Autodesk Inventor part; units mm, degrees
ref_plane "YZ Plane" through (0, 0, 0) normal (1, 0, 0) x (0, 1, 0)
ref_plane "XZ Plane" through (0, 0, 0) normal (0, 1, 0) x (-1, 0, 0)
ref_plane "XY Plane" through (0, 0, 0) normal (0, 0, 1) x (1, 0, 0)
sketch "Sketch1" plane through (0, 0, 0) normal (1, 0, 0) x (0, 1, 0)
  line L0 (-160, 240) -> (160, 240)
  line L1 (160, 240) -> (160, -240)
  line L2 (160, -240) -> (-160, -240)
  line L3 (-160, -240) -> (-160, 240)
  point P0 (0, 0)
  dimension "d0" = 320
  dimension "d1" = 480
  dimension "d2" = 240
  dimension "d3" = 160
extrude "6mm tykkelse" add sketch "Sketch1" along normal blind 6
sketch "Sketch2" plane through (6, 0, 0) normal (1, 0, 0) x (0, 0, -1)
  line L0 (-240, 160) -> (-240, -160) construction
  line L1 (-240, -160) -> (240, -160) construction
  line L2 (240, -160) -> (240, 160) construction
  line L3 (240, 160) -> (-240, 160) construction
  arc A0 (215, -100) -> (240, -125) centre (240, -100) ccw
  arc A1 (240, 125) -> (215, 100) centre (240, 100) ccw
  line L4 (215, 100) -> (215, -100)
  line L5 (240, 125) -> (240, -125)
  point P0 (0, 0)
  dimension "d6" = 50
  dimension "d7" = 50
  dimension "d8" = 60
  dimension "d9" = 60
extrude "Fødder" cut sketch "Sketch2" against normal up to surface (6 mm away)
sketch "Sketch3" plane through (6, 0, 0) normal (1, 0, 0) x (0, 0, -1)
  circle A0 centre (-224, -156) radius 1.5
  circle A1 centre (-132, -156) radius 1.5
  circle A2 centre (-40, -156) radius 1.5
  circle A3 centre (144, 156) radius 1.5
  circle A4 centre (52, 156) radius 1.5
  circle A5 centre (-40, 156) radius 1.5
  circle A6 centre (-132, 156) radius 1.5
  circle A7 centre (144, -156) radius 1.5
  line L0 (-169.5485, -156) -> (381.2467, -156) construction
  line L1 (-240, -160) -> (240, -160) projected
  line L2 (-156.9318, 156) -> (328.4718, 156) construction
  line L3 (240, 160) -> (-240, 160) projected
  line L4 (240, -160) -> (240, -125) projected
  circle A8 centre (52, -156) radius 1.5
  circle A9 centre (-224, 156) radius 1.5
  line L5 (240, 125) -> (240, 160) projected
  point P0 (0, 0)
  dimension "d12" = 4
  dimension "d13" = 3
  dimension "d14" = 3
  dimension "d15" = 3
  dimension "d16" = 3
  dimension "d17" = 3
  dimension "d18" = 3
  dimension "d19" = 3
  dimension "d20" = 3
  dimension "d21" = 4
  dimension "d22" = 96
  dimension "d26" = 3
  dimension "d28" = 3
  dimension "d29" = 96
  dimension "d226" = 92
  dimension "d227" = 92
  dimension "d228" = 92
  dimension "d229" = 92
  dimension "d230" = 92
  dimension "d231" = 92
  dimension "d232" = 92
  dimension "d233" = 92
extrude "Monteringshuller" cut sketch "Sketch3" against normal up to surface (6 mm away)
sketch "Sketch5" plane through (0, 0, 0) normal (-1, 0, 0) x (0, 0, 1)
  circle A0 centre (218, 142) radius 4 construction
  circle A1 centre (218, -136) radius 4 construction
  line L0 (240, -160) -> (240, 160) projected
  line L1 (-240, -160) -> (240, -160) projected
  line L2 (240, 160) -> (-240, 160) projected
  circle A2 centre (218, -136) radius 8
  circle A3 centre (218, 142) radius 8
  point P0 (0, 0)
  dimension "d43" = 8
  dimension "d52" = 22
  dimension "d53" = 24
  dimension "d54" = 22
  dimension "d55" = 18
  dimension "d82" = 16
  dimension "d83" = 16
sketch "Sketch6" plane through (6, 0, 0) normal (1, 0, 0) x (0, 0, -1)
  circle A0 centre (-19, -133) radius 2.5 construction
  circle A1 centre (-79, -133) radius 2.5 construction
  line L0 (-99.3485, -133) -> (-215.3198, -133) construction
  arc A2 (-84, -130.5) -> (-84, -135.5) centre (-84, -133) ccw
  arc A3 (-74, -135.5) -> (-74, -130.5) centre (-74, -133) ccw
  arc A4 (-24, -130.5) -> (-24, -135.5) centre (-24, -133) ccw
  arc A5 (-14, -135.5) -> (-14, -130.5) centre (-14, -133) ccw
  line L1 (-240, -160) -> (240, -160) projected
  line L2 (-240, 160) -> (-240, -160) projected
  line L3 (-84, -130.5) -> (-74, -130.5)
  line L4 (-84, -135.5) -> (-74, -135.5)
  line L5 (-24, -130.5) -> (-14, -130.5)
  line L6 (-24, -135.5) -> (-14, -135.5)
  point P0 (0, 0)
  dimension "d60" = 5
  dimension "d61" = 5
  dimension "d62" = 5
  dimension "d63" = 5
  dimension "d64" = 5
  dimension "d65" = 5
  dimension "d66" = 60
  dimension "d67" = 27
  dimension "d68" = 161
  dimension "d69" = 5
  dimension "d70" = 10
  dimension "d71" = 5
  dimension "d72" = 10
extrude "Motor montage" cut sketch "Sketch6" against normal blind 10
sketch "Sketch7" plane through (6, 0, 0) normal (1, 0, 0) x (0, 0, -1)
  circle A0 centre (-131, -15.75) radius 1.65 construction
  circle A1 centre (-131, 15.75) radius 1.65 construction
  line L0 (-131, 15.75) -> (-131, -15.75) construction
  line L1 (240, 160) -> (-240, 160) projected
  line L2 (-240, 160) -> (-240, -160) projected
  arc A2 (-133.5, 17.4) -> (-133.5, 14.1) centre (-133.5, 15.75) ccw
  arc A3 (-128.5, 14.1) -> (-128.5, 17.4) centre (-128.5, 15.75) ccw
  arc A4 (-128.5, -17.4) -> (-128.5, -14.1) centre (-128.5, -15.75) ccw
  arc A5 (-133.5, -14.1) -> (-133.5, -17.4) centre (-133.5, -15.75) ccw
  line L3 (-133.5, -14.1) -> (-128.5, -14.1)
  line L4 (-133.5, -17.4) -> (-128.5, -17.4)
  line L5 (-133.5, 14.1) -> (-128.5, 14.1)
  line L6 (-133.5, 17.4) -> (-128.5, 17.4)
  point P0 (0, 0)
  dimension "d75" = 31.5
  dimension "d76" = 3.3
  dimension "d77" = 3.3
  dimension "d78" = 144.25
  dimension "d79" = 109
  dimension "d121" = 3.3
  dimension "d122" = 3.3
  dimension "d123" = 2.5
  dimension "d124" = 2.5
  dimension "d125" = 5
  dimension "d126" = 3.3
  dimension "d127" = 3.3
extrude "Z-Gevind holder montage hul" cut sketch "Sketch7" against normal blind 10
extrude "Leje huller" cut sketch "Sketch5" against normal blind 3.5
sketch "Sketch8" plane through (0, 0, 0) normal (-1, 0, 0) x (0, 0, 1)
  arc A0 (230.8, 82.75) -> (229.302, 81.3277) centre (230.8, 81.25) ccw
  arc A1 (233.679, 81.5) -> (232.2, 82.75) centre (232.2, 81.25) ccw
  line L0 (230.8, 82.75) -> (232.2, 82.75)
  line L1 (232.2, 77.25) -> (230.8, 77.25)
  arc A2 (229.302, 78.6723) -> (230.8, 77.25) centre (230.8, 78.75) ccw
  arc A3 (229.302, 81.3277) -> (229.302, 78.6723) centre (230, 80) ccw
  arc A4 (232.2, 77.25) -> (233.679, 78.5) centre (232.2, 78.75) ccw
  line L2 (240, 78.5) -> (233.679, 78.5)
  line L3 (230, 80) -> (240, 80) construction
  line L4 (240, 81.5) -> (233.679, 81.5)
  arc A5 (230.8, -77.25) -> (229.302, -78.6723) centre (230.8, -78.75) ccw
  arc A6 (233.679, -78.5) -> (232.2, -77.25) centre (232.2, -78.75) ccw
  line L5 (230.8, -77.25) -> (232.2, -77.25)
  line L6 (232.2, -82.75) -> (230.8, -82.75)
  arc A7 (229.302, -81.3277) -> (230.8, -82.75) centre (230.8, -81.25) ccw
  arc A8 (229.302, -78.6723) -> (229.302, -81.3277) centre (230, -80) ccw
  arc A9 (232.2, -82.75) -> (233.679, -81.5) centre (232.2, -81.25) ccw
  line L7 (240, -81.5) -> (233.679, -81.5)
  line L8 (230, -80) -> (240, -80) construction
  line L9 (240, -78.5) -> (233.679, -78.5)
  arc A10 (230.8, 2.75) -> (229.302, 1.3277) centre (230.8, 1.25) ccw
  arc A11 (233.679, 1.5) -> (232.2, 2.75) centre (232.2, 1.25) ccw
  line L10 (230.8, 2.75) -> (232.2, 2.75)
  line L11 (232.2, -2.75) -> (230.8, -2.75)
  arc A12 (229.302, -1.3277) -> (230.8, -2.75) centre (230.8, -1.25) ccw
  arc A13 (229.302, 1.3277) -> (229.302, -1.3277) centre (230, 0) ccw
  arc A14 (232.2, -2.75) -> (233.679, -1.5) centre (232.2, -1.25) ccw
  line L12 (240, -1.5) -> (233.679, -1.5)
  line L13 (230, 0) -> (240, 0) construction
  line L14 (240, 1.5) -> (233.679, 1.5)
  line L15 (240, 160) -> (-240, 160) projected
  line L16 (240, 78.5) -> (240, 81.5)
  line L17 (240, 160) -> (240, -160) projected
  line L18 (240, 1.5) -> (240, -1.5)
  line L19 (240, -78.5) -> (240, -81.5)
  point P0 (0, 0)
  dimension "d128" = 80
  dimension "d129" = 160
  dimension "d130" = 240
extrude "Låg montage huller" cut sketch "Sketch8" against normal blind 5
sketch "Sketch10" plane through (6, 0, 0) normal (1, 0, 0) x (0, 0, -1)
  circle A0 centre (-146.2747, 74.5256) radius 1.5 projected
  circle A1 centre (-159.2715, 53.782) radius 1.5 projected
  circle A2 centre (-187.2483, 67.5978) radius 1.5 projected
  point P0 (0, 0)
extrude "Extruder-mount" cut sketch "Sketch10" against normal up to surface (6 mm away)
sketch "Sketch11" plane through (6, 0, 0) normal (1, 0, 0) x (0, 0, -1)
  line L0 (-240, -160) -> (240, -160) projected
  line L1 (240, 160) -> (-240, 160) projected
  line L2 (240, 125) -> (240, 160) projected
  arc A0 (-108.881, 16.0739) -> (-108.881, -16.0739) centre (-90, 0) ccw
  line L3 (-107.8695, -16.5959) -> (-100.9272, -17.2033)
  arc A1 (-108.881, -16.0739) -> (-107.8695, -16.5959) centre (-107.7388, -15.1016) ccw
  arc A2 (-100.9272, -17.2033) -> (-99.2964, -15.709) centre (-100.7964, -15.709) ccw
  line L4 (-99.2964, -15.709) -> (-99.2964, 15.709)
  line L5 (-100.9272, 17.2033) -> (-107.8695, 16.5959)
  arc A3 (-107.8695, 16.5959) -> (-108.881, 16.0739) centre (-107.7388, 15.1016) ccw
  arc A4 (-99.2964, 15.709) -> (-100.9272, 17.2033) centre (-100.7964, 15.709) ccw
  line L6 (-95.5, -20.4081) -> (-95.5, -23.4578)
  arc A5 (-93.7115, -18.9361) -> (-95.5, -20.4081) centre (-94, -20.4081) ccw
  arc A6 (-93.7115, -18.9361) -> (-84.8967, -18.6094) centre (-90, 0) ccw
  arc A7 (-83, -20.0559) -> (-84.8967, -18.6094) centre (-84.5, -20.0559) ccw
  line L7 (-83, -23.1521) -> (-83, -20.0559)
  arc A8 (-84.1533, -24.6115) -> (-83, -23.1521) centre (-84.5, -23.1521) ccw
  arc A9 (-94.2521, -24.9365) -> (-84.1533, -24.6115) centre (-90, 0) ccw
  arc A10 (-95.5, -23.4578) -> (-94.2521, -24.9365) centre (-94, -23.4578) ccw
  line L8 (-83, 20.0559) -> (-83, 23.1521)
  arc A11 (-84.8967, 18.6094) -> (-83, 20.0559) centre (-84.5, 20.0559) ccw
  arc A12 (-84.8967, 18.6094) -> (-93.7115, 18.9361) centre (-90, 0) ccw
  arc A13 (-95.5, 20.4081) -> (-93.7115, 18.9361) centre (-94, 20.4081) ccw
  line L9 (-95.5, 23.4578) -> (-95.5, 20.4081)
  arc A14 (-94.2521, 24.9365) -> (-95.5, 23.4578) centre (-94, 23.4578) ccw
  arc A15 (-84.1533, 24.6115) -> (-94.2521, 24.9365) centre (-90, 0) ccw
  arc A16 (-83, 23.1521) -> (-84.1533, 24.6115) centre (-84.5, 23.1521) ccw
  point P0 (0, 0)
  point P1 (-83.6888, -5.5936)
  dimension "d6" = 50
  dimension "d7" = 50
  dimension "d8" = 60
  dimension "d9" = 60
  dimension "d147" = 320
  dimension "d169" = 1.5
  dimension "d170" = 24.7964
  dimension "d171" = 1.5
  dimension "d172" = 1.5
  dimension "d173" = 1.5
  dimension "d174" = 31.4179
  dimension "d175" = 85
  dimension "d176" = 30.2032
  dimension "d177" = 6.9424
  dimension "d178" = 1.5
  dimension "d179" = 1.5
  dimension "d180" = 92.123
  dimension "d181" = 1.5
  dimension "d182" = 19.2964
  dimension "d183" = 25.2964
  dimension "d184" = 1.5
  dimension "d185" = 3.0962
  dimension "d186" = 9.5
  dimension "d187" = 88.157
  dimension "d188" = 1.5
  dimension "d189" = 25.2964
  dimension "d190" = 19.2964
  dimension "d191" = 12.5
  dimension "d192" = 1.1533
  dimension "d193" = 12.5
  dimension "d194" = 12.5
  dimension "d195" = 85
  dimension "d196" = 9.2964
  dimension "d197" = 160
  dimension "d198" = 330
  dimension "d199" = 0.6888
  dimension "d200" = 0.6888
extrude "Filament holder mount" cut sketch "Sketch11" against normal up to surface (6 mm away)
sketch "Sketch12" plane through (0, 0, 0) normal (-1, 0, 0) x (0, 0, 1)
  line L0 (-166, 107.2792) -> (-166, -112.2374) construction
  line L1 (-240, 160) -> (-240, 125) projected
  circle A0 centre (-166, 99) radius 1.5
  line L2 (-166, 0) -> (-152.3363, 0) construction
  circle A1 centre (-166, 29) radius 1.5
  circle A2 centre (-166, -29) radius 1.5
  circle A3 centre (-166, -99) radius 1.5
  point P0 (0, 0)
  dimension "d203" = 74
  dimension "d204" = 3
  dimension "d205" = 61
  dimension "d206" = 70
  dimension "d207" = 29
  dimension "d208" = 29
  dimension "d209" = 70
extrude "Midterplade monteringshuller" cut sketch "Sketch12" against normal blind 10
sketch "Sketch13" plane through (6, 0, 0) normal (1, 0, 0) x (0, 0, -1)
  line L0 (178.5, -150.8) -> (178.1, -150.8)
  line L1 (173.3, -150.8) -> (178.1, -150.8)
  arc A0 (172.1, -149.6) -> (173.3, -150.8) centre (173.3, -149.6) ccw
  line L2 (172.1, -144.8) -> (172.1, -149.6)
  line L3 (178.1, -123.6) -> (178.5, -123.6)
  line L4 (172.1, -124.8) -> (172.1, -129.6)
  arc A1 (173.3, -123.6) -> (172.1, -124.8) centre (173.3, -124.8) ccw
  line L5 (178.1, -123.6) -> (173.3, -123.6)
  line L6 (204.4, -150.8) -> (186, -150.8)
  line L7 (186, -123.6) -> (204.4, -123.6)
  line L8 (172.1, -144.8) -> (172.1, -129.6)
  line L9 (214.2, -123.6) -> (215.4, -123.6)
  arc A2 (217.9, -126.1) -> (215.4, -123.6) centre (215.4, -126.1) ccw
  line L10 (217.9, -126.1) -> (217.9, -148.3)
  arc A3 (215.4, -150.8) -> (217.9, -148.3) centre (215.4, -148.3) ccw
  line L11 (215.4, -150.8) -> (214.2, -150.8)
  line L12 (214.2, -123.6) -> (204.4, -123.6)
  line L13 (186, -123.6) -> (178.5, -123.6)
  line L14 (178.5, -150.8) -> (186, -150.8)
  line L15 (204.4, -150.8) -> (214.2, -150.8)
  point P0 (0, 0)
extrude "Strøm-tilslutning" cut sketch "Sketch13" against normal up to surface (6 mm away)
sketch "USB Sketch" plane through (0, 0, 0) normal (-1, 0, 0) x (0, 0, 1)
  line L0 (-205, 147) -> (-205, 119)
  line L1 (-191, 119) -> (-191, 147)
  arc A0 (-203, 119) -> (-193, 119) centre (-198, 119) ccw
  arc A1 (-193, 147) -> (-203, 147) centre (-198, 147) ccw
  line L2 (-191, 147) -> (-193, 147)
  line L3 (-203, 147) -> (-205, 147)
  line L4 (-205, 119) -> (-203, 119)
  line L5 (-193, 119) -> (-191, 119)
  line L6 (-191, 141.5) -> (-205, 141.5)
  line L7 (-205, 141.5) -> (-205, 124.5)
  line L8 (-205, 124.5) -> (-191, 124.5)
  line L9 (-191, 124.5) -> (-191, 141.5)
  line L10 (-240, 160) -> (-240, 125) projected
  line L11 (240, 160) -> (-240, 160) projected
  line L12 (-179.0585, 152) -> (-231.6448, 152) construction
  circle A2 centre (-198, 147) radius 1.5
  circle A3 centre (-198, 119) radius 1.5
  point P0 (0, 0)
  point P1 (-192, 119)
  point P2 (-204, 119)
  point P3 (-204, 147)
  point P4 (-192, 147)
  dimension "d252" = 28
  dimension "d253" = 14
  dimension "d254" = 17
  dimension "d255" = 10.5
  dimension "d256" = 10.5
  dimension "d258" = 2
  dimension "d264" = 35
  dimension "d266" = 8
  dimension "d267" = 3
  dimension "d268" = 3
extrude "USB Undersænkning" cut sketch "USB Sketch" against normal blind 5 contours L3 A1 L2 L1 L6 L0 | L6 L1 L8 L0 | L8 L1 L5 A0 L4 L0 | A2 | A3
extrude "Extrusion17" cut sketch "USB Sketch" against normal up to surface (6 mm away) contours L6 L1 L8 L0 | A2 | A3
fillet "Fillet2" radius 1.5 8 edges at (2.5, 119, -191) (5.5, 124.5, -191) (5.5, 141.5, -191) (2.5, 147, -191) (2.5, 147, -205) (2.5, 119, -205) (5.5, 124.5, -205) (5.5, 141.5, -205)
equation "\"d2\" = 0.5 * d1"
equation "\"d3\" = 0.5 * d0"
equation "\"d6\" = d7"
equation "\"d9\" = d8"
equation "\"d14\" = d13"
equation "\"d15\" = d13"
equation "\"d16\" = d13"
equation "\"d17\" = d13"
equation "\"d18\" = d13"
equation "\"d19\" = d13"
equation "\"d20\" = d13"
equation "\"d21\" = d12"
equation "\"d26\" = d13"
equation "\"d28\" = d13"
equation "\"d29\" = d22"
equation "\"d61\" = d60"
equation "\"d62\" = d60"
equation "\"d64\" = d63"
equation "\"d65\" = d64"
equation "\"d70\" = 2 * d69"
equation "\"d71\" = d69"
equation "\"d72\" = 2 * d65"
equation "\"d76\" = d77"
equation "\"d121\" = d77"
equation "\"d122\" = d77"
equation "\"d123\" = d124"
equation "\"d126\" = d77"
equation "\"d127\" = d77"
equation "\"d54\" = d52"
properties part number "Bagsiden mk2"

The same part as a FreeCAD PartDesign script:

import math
import FreeCAD as App
import Part
import Sketcher
from FreeCAD import Vector
Q = App.Units.Quantity


def edges_at(feature, points):
    """Names of the edges that pass closest to the given points."""
    edges = feature.Shape.Edges
    near = lambda p: min(range(len(edges)), key=lambda i: edges[i].distToShape(Part.Vertex(*p))[0])
    return sorted({f"Edge{near(p) + 1}" for p in points})

doc = App.newDocument("Part")
body = doc.addObject("PartDesign::Body", "Body")

# Sketch on YZ plane
sketch1 = body.newObject("Sketcher::SketchObject", "Sketch")
sketch1.AttachmentSupport = (doc.getObject("YZ_Plane"), [""])
sketch1.MapMode = "FlatFace"
sketch1.addGeometry(Part.LineSegment(Vector(160, 240, 0), Vector(-160, 240, 0)), False)
sketch1.addGeometry(Part.LineSegment(Vector(-160, 240, 0), Vector(-160, -240, 0)), False)
sketch1.addGeometry(Part.LineSegment(Vector(-160, -240, 0), Vector(160, -240, 0)), False)
sketch1.addGeometry(Part.LineSegment(Vector(160, -240, 0), Vector(160, 240, 0)), False)
sketch1.addConstraint(Sketcher.Constraint("Coincident", 0, 2, 1, 1))
sketch1.addConstraint(Sketcher.Constraint("Coincident", 1, 2, 2, 1))
sketch1.addConstraint(Sketcher.Constraint("Coincident", 2, 2, 3, 1))
sketch1.addConstraint(Sketcher.Constraint("Coincident", 3, 2, 0, 1))
sketch1.addConstraint(Sketcher.Constraint("Horizontal", 0))
sketch1.addConstraint(Sketcher.Constraint("Vertical", 1))
sketch1.addConstraint(Sketcher.Constraint("Horizontal", 2))
sketch1.addConstraint(Sketcher.Constraint("Vertical", 3))
sketch1.addConstraint(Sketcher.Constraint("Symmetric", 0, 2, 2, 2, -1, 1))
sketch1.addConstraint(Sketcher.Constraint("DistanceX", 0, 2, 0, 1, 320.0))
sketch1.addConstraint(Sketcher.Constraint("DistanceY", 1, 2, 1, 1, 480.0))
pad1 = body.newObject("PartDesign::Pad", "Pad")
pad1.Profile = sketch1
pad1.Length = 6

# Sketch on YZ plane
sketch2 = body.newObject("Sketcher::SketchObject", "Sketch001")
sketch2.AttachmentSupport = (doc.getObject("YZ_Plane"), [""])
sketch2.MapMode = "FlatFace"
sketch2.AttachmentOffset = App.Placement(Vector(0, 0, 6), App.Rotation())
sketch2.addGeometry(Part.LineSegment(Vector(100, -215, 0), Vector(-100, -215, 0)), False)
sketch2.addGeometry(Part.ArcOfCircle(Part.Circle(Vector(-100, -240, 0), Vector(0, 0, 1), 25), math.radians(90), math.radians(180)), False)
sketch2.addGeometry(Part.LineSegment(Vector(-125, -240, 0), Vector(125, -240, 0)), False)
sketch2.addGeometry(Part.ArcOfCircle(Part.Circle(Vector(100, -240, 0), Vector(0, 0, 1), 25), math.radians(0), math.radians(90)), False)
sketch2.addConstraint(Sketcher.Constraint("Tangent", 0, 2, 1, 1))
sketch2.addConstraint(Sketcher.Constraint("Coincident", 1, 2, 2, 1))
sketch2.addConstraint(Sketcher.Constraint("Coincident", 2, 2, 3, 1))
sketch2.addConstraint(Sketcher.Constraint("Tangent", 3, 2, 0, 1))
sketch2.addConstraint(Sketcher.Constraint("Horizontal", 0))
sketch2.addConstraint(Sketcher.Constraint("Horizontal", 2))
sketch2.addConstraint(Sketcher.Constraint("Equal", 1, 3))
sketch2.addConstraint(Sketcher.Constraint("Horizontal", 3, 3, 1, 2))
sketch2.addConstraint(Sketcher.Constraint("Radius", 1, 25.0))
sketch2.addConstraint(Sketcher.Constraint("DistanceX", 0, 2, 0, 1, 200.0))
sketch2.addConstraint(Sketcher.Constraint("DistanceX", 1, 3, -1, 1, 100.0))
sketch2.addConstraint(Sketcher.Constraint("DistanceY", 1, 3, -1, 1, 240.0))
pocket1 = body.newObject("PartDesign::Pocket", "Pocket")
pocket1.Profile = sketch2
pocket1.Length = 6

# Sketch on YZ plane
sketch3 = body.newObject("Sketcher::SketchObject", "Sketch002")
sketch3.AttachmentSupport = (doc.getObject("YZ_Plane"), [""])
sketch3.MapMode = "FlatFace"
sketch3.AttachmentOffset = App.Placement(Vector(0, 0, 6), App.Rotation())
sketch3.addGeometry(Part.Circle(Vector(-156, 224, 0), Vector(0, 0, 1), 1.5), False)
sketch3.addGeometry(Part.Circle(Vector(-156, 132, 0), Vector(0, 0, 1), 1.5), False)
sketch3.addGeometry(Part.Circle(Vector(-156, 40, 0), Vector(0, 0, 1), 1.5), False)
sketch3.addGeometry(Part.Circle(Vector(156, -144, 0), Vector(0, 0, 1), 1.5), False)
sketch3.addGeometry(Part.Circle(Vector(156, -52, 0), Vector(0, 0, 1), 1.5), False)
sketch3.addGeometry(Part.Circle(Vector(156, 40, 0), Vector(0, 0, 1), 1.5), False)
sketch3.addGeometry(Part.Circle(Vector(156, 132, 0), Vector(0, 0, 1), 1.5), False)
sketch3.addGeometry(Part.Circle(Vector(-156, -144, 0), Vector(0, 0, 1), 1.5), False)
sketch3.addGeometry(Part.Circle(Vector(-156, -52, 0), Vector(0, 0, 1), 1.5), False)
sketch3.addGeometry(Part.Circle(Vector(156, 224, 0), Vector(0, 0, 1), 1.5), False)
sketch3.addConstraint(Sketcher.Constraint("Equal", 0, 1))
sketch3.addConstraint(Sketcher.Constraint("Equal", 1, 2))
sketch3.addConstraint(Sketcher.Constraint("Equal", 2, 3))
sketch3.addConstraint(Sketcher.Constraint("Equal", 3, 4))
sketch3.addConstraint(Sketcher.Constraint("Equal", 4, 5))
sketch3.addConstraint(Sketcher.Constraint("Equal", 5, 6))
sketch3.addConstraint(Sketcher.Constraint("Equal", 6, 7))
sketch3.addConstraint(Sketcher.Constraint("Equal", 7, 8))
sketch3.addConstraint(Sketcher.Constraint("Equal", 8, 9))
sketch3.addConstraint(Sketcher.Constraint("Symmetric", 2, 3, 5, 3, -2))
sketch3.addConstraint(Sketcher.Constraint("Symmetric", 1, 3, 6, 3, -2))
sketch3.addConstraint(Sketcher.Constraint("Symmetric", 3, 3, 7, 3, -2))
sketch3.addConstraint(Sketcher.Constraint("Symmetric", 4, 3, 8, 3, -2))
sketch3.addConstraint(Sketcher.Constraint("Symmetric", 0, 3, 9, 3, -2))
sketch3.addConstraint(Sketcher.Constraint("Vertical", 0, 3, 1, 3))
sketch3.addConstraint(Sketcher.Constraint("Vertical", 1, 3, 2, 3))
sketch3.addConstraint(Sketcher.Constraint("Vertical", 3, 3, 4, 3))
sketch3.addConstraint(Sketcher.Constraint("Vertical", 4, 3, 5, 3))
sketch3.addConstraint(Sketcher.Constraint("Diameter", 0, 3.0))
sketch3.addConstraint(Sketcher.Constraint("DistanceY", 1, 3, 0, 3, 92.0))
sketch3.addConstraint(Sketcher.Constraint("DistanceY", 2, 3, 1, 3, 92.0))
sketch3.addConstraint(Sketcher.Constraint("DistanceY", 3, 3, 4, 3, 92.0))
sketch3.addConstraint(Sketcher.Constraint("DistanceY", 4, 3, 2, 3, 92.0))
sketch3.addConstraint(Sketcher.Constraint("DistanceX", 0, 3, -1, 1, 156.0))
sketch3.addConstraint(Sketcher.Constraint("DistanceY", -1, 1, 0, 3, 224.0))
pocket2 = body.newObject("PartDesign::Pocket", "Pocket001")
pocket2.Profile = sketch3
pocket2.Length = 6

# Sketch on YZ plane
sketch4 = body.newObject("Sketcher::SketchObject", "Sketch003")
sketch4.AttachmentSupport = (doc.getObject("YZ_Plane"), [""])
sketch4.MapMode = "FlatFace"
sketch4.AttachmentOffset = App.Placement(Vector(0, 0, 6), App.Rotation())
sketch4.addGeometry(Part.LineSegment(Vector(-130.5, 74, 0), Vector(-130.5, 84, 0)), False)
sketch4.addGeometry(Part.ArcOfCircle(Part.Circle(Vector(-133, 84, 0), Vector(0, 0, 1), 2.5), math.radians(0), math.radians(180)), False)
sketch4.addGeometry(Part.LineSegment(Vector(-135.5, 84, 0), Vector(-135.5, 74, 0)), False)
sketch4.addGeometry(Part.ArcOfCircle(Part.Circle(Vector(-133, 74, 0), Vector(0, 0, 1), 2.5), math.radians(180), math.radians(360)), False)
sketch4.addGeometry(Part.LineSegment(Vector(-130.5, 14, 0), Vector(-130.5, 24, 0)), False)
sketch4.addGeometry(Part.ArcOfCircle(Part.Circle(Vector(-133, 24, 0), Vector(0, 0, 1), 2.5), math.radians(0), math.radians(180)), False)
sketch4.addGeometry(Part.LineSegment(Vector(-135.5, 24, 0), Vector(-135.5, 14, 0)), False)
sketch4.addGeometry(Part.ArcOfCircle(Part.Circle(Vector(-133, 14, 0), Vector(0, 0, 1), 2.5), math.radians(180), math.radians(360)), False)
sketch4.addConstraint(Sketcher.Constraint("Tangent", 0, 2, 1, 1))
sketch4.addConstraint(Sketcher.Constraint("Tangent", 1, 2, 2, 1))
sketch4.addConstraint(Sketcher.Constraint("Tangent", 2, 2, 3, 1))
sketch4.addConstraint(Sketcher.Constraint("Tangent", 3, 2, 0, 1))
sketch4.addConstraint(Sketcher.Constraint("Tangent", 4, 2, 5, 1))
sketch4.addConstraint(Sketcher.Constraint("Tangent", 5, 2, 6, 1))
sketch4.addConstraint(Sketcher.Constraint("Tangent", 6, 2, 7, 1))
sketch4.addConstraint(Sketcher.Constraint("Tangent", 7, 2, 4, 1))
sketch4.addConstraint(Sketcher.Constraint("Vertical", 0))
sketch4.addConstraint(Sketcher.Constraint("Vertical", 2))
sketch4.addConstraint(Sketcher.Constraint("Vertical", 4))
sketch4.addConstraint(Sketcher.Constraint("Vertical", 6))
sketch4.addConstraint(Sketcher.Constraint("Equal", 3, 5))
sketch4.addConstraint(Sketcher.Constraint("Vertical", 3, 3, 5, 3))
sketch4.addConstraint(Sketcher.Constraint("Equal", 2, 4))
sketch4.addConstraint(Sketcher.Constraint("Radius", 1, 2.5))
sketch4.addConstraint(Sketcher.Constraint("DistanceY", 0, 1, 0, 2, 10.0))
sketch4.addConstraint(Sketcher.Constraint("DistanceY", 5, 3, 1, 3, 60.0))
sketch4.addConstraint(Sketcher.Constraint("DistanceX", 1, 3, -1, 1, 133.0))
sketch4.addConstraint(Sketcher.Constraint("DistanceY", -1, 1, 1, 3, 84.0))
pocket3 = body.newObject("PartDesign::Pocket", "Pocket002")
pocket3.Profile = sketch4
pocket3.Length = 10

# Sketch on YZ plane
sketch5 = body.newObject("Sketcher::SketchObject", "Sketch004")
sketch5.AttachmentSupport = (doc.getObject("YZ_Plane"), [""])
sketch5.MapMode = "FlatFace"
sketch5.AttachmentOffset = App.Placement(Vector(0, 0, 6), App.Rotation())
sketch5.addGeometry(Part.LineSegment(Vector(17.4, 128.5, 0), Vector(17.4, 133.5, 0)), False)
sketch5.addGeometry(Part.ArcOfCircle(Part.Circle(Vector(15.75, 133.5, 0), Vector(0, 0, 1), 1.65), math.radians(0), math.radians(180)), False)
sketch5.addGeometry(Part.LineSegment(Vector(14.1, 133.5, 0), Vector(14.1, 128.5, 0)), False)
sketch5.addGeometry(Part.ArcOfCircle(Part.Circle(Vector(15.75, 128.5, 0), Vector(0, 0, 1), 1.65), math.radians(180), math.radians(360)), False)
sketch5.addGeometry(Part.LineSegment(Vector(-17.4, 133.5, 0), Vector(-17.4, 128.5, 0)), False)
sketch5.addGeometry(Part.ArcOfCircle(Part.Circle(Vector(-15.75, 128.5, 0), Vector(0, 0, 1), 1.65), math.radians(180), math.radians(360)), False)
sketch5.addGeometry(Part.LineSegment(Vector(-14.1, 128.5, 0), Vector(-14.1, 133.5, 0)), False)
sketch5.addGeometry(Part.ArcOfCircle(Part.Circle(Vector(-15.75, 133.5, 0), Vector(0, 0, 1), 1.65), math.radians(0), math.radians(180)), False)
sketch5.addConstraint(Sketcher.Constraint("Tangent", 0, 2, 1, 1))
sketch5.addConstraint(Sketcher.Constraint("Tangent", 1, 2, 2, 1))
sketch5.addConstraint(Sketcher.Constraint("Tangent", 2, 2, 3, 1))
sketch5.addConstraint(Sketcher.Constraint("Tangent", 3, 2, 0, 1))
sketch5.addConstraint(Sketcher.Constraint("Tangent", 4, 2, 5, 1))
sketch5.addConstraint(Sketcher.Constraint("Tangent", 5, 2, 6, 1))
sketch5.addConstraint(Sketcher.Constraint("Tangent", 6, 2, 7, 1))
sketch5.addConstraint(Sketcher.Constraint("Tangent", 7, 2, 4, 1))
sketch5.addConstraint(Sketcher.Constraint("Vertical", 0))
sketch5.addConstraint(Sketcher.Constraint("Vertical", 2))
sketch5.addConstraint(Sketcher.Constraint("Vertical", 4))
sketch5.addConstraint(Sketcher.Constraint("Vertical", 6))
sketch5.addConstraint(Sketcher.Constraint("Equal", 3, 5))
sketch5.addConstraint(Sketcher.Constraint("Symmetric", 3, 3, 5, 3, -2))
sketch5.addConstraint(Sketcher.Constraint("Horizontal", 1, 3, 7, 3))
sketch5.addConstraint(Sketcher.Constraint("DistanceY", 0, 1, 0, 2, 5.0))
sketch5.addConstraint(Sketcher.Constraint("Radius", 1, 1.65))
sketch5.addConstraint(Sketcher.Constraint("DistanceX", 5, 3, 3, 3, 31.5))
sketch5.addConstraint(Sketcher.Constraint("DistanceY", -1, 1, 1, 3, 133.5))
pocket4 = body.newObject("PartDesign::Pocket", "Pocket003")
pocket4.Profile = sketch5
pocket4.Length = 10

# Sketch on YZ plane
sketch6 = body.newObject("Sketcher::SketchObject", "Sketch005")
sketch6.AttachmentSupport = (doc.getObject("YZ_Plane"), [""])
sketch6.MapMode = "FlatFace"
sketch6.addGeometry(Part.Circle(Vector(-136, 218, 0), Vector(0, 0, 1), 8), False)
sketch6.addGeometry(Part.Circle(Vector(142, 218, 0), Vector(0, 0, 1), 8), False)
sketch6.addConstraint(Sketcher.Constraint("Equal", 0, 1))
sketch6.addConstraint(Sketcher.Constraint("Horizontal", 0, 3, 1, 3))
sketch6.addConstraint(Sketcher.Constraint("Diameter", 0, 16.0))
sketch6.addConstraint(Sketcher.Constraint("DistanceX", 0, 3, -1, 1, 136.0))
sketch6.addConstraint(Sketcher.Constraint("DistanceY", -1, 1, 0, 3, 218.0))
sketch6.addConstraint(Sketcher.Constraint("DistanceX", -1, 1, 1, 3, 142.0))
pocket5 = body.newObject("PartDesign::Pocket", "Pocket004")
pocket5.Profile = sketch6
pocket5.Length = 3.5
pocket5.Reversed = True

# Sketch on YZ plane
sketch7 = body.newObject("Sketcher::SketchObject", "Sketch006")
sketch7.AttachmentSupport = (doc.getObject("YZ_Plane"), [""])
sketch7.MapMode = "FlatFace"
sketch7.addGeometry(Part.LineSegment(Vector(82.75, 232.2, 0), Vector(82.75, 230.8, 0)), False)
sketch7.addGeometry(Part.ArcOfCircle(Part.Circle(Vector(81.25, 230.8, 0), Vector(0, 0, 1), 1.5), math.radians(-87.030777), math.radians(0)), False)
sketch7.addGeometry(Part.ArcOfCircle(Part.Circle(Vector(80, 230, 0), Vector(0, 0, 1), 1.499997), math.radians(-152.268145), math.radians(-27.731855)), False)
sketch7.addGeometry(Part.ArcOfCircle(Part.Circle(Vector(78.75, 230.8, 0), Vector(0, 0, 1), 1.500014), math.radians(180), math.radians(267.030777)), False)
sketch7.addGeometry(Part.LineSegment(Vector(77.25, 230.8, 0), Vector(77.25, 232.2, 0)), False)
sketch7.addGeometry(Part.ArcOfCircle(Part.Circle(Vector(78.75, 232.2, 0), Vector(0, 0, 1), 1.5), math.radians(99.594195), math.radians(180)), False)
sketch7.addGeometry(Part.LineSegment(Vector(78.5, 233.679, 0), Vector(78.5, 240, 0)), False)
sketch7.addGeometry(Part.LineSegment(Vector(78.5, 240, 0), Vector(81.5, 240, 0)), False)
sketch7.addGeometry(Part.LineSegment(Vector(81.5, 240, 0), Vector(81.5, 233.679, 0)), False)
sketch7.addGeometry(Part.ArcOfCircle(Part.Circle(Vector(81.25, 232.2, 0), Vector(0, 0, 1), 1.49998), math.radians(0), math.radians(80.405805)), False)
sketch7.addGeometry(Part.LineSegment(Vector(-81.5, 240, 0), Vector(-78.5, 240, 0)), False)
sketch7.addGeometry(Part.LineSegment(Vector(-78.5, 240, 0), Vector(-78.5, 233.679, 0)), False)
sketch7.addGeometry(Part.ArcOfCircle(Part.Circle(Vector(-78.75, 232.2, 0), Vector(0, 0, 1), 1.49998), math.radians(0), math.radians(80.405805)), False)
sketch7.addGeometry(Part.LineSegment(Vector(-77.25, 232.2, 0), Vector(-77.25, 230.8, 0)), False)
sketch7.addGeometry(Part.ArcOfCircle(Part.Circle(Vector(-78.75, 230.8, 0), Vector(0, 0, 1), 1.5), math.radians(-87.030777), math.radians(0)), False)
sketch7.addGeometry(Part.ArcOfCircle(Part.Circle(Vector(-80, 230, 0), Vector(0, 0, 1), 1.499997), math.radians(-152.268145), math.radians(-27.731855)), False)
sketch7.addGeometry(Part.ArcOfCircle(Part.Circle(Vector(-81.25, 230.8, 0), Vector(0, 0, 1), 1.500014), math.radians(180), math.radians(267.030777)), False)
sketch7.addGeometry(Part.LineSegment(Vector(-82.75, 230.8, 0), Vector(-82.75, 232.2, 0)), False)
sketch7.addGeometry(Part.ArcOfCircle(Part.Circle(Vector(-81.25, 232.2, 0), Vector(0, 0, 1), 1.5), math.radians(99.594195), math.radians(180)), False)
sketch7.addGeometry(Part.LineSegment(Vector(-81.5, 233.679, 0), Vector(-81.5, 240, 0)), False)
sketch7.addGeometry(Part.LineSegment(Vector(-1.5, 240, 0), Vector(1.5, 240, 0)), False)
sketch7.addGeometry(Part.LineSegment(Vector(1.5, 240, 0), Vector(1.5, 233.679, 0)), False)
sketch7.addGeometry(Part.ArcOfCircle(Part.Circle(Vector(1.25, 232.2, 0), Vector(0, 0, 1), 1.49998), math.radians(0), math.radians(80.405805)), False)
sketch7.addGeometry(Part.LineSegment(Vector(2.75, 232.2, 0), Vector(2.75, 230.8, 0)), False)
sketch7.addGeometry(Part.ArcOfCircle(Part.Circle(Vector(1.25, 230.8, 0), Vector(0, 0, 1), 1.5), math.radians(-87.030777), math.radians(0)), False)
sketch7.addGeometry(Part.ArcOfCircle(Part.Circle(Vector(0, 230, 0), Vector(0, 0, 1), 1.499997), math.radians(-152.268145), math.radians(-27.731855)), False)
sketch7.addGeometry(Part.ArcOfCircle(Part.Circle(Vector(-1.25, 230.8, 0), Vector(0, 0, 1), 1.500014), math.radians(180), math.radians(267.030777)), False)
sketch7.addGeometry(Part.LineSegment(Vector(-2.75, 230.8, 0), Vector(-2.75, 232.2, 0)), False)
sketch7.addGeometry(Part.ArcOfCircle(Part.Circle(Vector(-1.25, 232.2, 0), Vector(0, 0, 1), 1.5), math.radians(99.594195), math.radians(180)), False)
sketch7.addGeometry(Part.LineSegment(Vector(-1.5, 233.679, 0), Vector(-1.5, 240, 0)), False)
sketch7.addConstraint(Sketcher.Constraint("Tangent", 0, 2, 1, 2))
sketch7.addConstraint(Sketcher.Constraint("Coincident", 1, 1, 2, 2))
sketch7.addConstraint(Sketcher.Constraint("Coincident", 2, 1, 3, 2))
sketch7.addConstraint(Sketcher.Constraint("Tangent", 3, 1, 4, 1))
sketch7.addConstraint(Sketcher.Constraint("Tangent", 4, 2, 5, 2))
sketch7.addConstraint(Sketcher.Constraint("Coincident", 5, 1, 6, 1))
sketch7.addConstraint(Sketcher.Constraint("Coincident", 6, 2, 7, 1))
sketch7.addConstraint(Sketcher.Constraint("Coincident", 7, 2, 8, 1))
sketch7.addConstraint(Sketcher.Constraint("Coincident", 8, 2, 9, 2))
sketch7.addConstraint(Sketcher.Constraint("Tangent", 9, 1, 0, 1))
sketch7.addConstraint(Sketcher.Constraint("Coincident", 10, 2, 11, 1))
sketch7.addConstraint(Sketcher.Constraint("Coincident", 11, 2, 12, 2))
sketch7.addConstraint(Sketcher.Constraint("Tangent", 12, 1, 13, 1))
sketch7.addConstraint(Sketcher.Constraint("Tangent", 13, 2, 14, 2))
sketch7.addConstraint(Sketcher.Constraint("Coincident", 14, 1, 15, 2))
sketch7.addConstraint(Sketcher.Constraint("Coincident", 15, 1, 16, 2))
sketch7.addConstraint(Sketcher.Constraint("Tangent", 16, 1, 17, 1))
sketch7.addConstraint(Sketcher.Constraint("Tangent", 17, 2, 18, 2))
sketch7.addConstraint(Sketcher.Constraint("Coincident", 18, 1, 19, 1))
sketch7.addConstraint(Sketcher.Constraint("Coincident", 19, 2, 10, 1))
sketch7.addConstraint(Sketcher.Constraint("Coincident", 20, 2, 21, 1))
sketch7.addConstraint(Sketcher.Constraint("Coincident", 21, 2, 22, 2))
sketch7.addConstraint(Sketcher.Constraint("Tangent", 22, 1, 23, 1))
sketch7.addConstraint(Sketcher.Constraint("Tangent", 23, 2, 24, 2))
sketch7.addConstraint(Sketcher.Constraint("Coincident", 24, 1, 25, 2))
sketch7.addConstraint(Sketcher.Constraint("Coincident", 25, 1, 26, 2))
sketch7.addConstraint(Sketcher.Constraint("Tangent", 26, 1, 27, 1))
sketch7.addConstraint(Sketcher.Constraint("Tangent", 27, 2, 28, 2))
sketch7.addConstraint(Sketcher.Constraint("Coincident", 28, 1, 29, 1))
sketch7.addConstraint(Sketcher.Constraint("Coincident", 29, 2, 20, 1))
sketch7.addConstraint(Sketcher.Constraint("Vertical", 0))
sketch7.addConstraint(Sketcher.Constraint("Vertical", 4))
sketch7.addConstraint(Sketcher.Constraint("Vertical", 6))
sketch7.addConstraint(Sketcher.Constraint("Horizontal", 7))
sketch7.addConstraint(Sketcher.Constraint("Vertical", 8))
sketch7.addConstraint(Sketcher.Constraint("Horizontal", 10))
sketch7.addConstraint(Sketcher.Constraint("Vertical", 11))
sketch7.addConstraint(Sketcher.Constraint("Vertical", 13))
sketch7.addConstraint(Sketcher.Constraint("Vertical", 17))
sketch7.addConstraint(Sketcher.Constraint("Vertical", 19))
sketch7.addConstraint(Sketcher.Constraint("Horizontal", 20))
sketch7.addConstraint(Sketcher.Constraint("Vertical", 21))
sketch7.addConstraint(Sketcher.Constraint("Vertical", 23))
sketch7.addConstraint(Sketcher.Constraint("Vertical", 27))
sketch7.addConstraint(Sketcher.Constraint("Vertical", 29))
sketch7.addConstraint(Sketcher.Constraint("Equal", 1, 2))
sketch7.addConstraint(Sketcher.Constraint("Equal", 2, 3))
sketch7.addConstraint(Sketcher.Constraint("Equal", 3, 5))
sketch7.addConstraint(Sketcher.Constraint("Equal", 5, 9))
sketch7.addConstraint(Sketcher.Constraint("Equal", 9, 12))
sketch7.addConstraint(Sketcher.Constraint("Equal", 12, 14))
sketch7.addConstraint(Sketcher.Constraint("Equal", 14, 15))
sketch7.addConstraint(Sketcher.Constraint("Equal", 15, 16))
sketch7.addConstraint(Sketcher.Constraint("Equal", 16, 18))
sketch7.addConstraint(Sketcher.Constraint("Equal", 18, 22))
sketch7.addConstraint(Sketcher.Constraint("Equal", 22, 24))
sketch7.addConstraint(Sketcher.Constraint("Equal", 24, 25))
sketch7.addConstraint(Sketcher.Constraint("Equal", 25, 26))
sketch7.addConstraint(Sketcher.Constraint("Equal", 26, 28))
sketch7.addConstraint(Sketcher.Constraint("Symmetric", 5, 3, 12, 3, -2))
sketch7.addConstraint(Sketcher.Constraint("Symmetric", 2, 3, 15, 3, -2))
sketch7.addConstraint(Sketcher.Constraint("Symmetric", 1, 3, 16, 3, -2))
sketch7.addConstraint(Sketcher.Constraint("Symmetric", 24, 3, 26, 3, -2))
sketch7.addConstraint(Sketcher.Constraint("Symmetric", 6, 2, 10, 2, -2))
sketch7.addConstraint(Sketcher.Constraint("Symmetric", 8, 2, 18, 1, -2))
sketch7.addConstraint(Sketcher.Constraint("Symmetric", 21, 2, 28, 1, -2))
sketch7.addConstraint(Sketcher.Constraint("PointOnObject", 25, 3, -2))
sketch7.addConstraint(Sketcher.Constraint("Horizontal", 1, 3, 3, 3))
sketch7.addConstraint(Sketcher.Constraint("Horizontal", 5, 3, 9, 3))
sketch7.addConstraint(Sketcher.Constraint("Horizontal", 3, 3, 14, 3))
sketch7.addConstraint(Sketcher.Constraint("Horizontal", 18, 3, 22, 3))
sketch7.addConstraint(Sketcher.Constraint("Horizontal", 16, 3, 24, 3))
sketch7.addConstraint(Sketcher.Constraint("Horizontal", 15, 3, 25, 3))
sketch7.addConstraint(Sketcher.Constraint("Horizontal", 1, 1, 2, 1))
sketch7.addConstraint(Sketcher.Constraint("Horizontal", 5, 1, 8, 2))
sketch7.addConstraint(Sketcher.Constraint("Horizontal", 19, 2, 20, 2))
sketch7.addConstraint(Sketcher.Constraint("Horizontal", 18, 1, 21, 2))
sketch7.addConstraint(Sketcher.Constraint("Horizontal", 15, 1, 24, 1))
sketch7.addConstraint(Sketcher.Constraint("DistanceX", -1, 1, 2, 3, 80.0))
sketch7.addConstraint(Sketcher.Constraint("DistanceY", -1, 1, 6, 2, 240.0))
sketch7.addConstraint(Sketcher.Constraint("Radius", 1, 1.5))
sketch7.addConstraint(Sketcher.Constraint("DistanceX", 7, 1, 7, 2, 3.0))
sketch7.addConstraint(Sketcher.Constraint("DistanceY", 0, 2, 0, 1, 1.4))
sketch7.addConstraint(Sketcher.Constraint("DistanceY", -1, 1, 2, 3, 230.0))
sketch7.addConstraint(Sketcher.Constraint("DistanceX", 3, 3, 0, 2, 4.0))
sketch7.addConstraint(Sketcher.Constraint("DistanceY", -1, 1, 1, 3, 230.8))
pocket6 = body.newObject("PartDesign::Pocket", "Pocket005")
pocket6.Profile = sketch7
pocket6.Length = 5
pocket6.Reversed = True

# Sketch on YZ plane
sketch8 = body.newObject("Sketcher::SketchObject", "Sketch007")
sketch8.AttachmentSupport = (doc.getObject("YZ_Plane"), [""])
sketch8.MapMode = "FlatFace"
sketch8.AttachmentOffset = App.Placement(Vector(0, 0, 6), App.Rotation())
sketch8.addGeometry(Part.Circle(Vector(74.5256, 146.2747, 0), Vector(0, 0, 1), 1.5), False)
sketch8.addGeometry(Part.Circle(Vector(53.782, 159.2715, 0), Vector(0, 0, 1), 1.5), False)
sketch8.addGeometry(Part.Circle(Vector(67.5978, 187.2483, 0), Vector(0, 0, 1), 1.5), False)
sketch8.addConstraint(Sketcher.Constraint("Equal", 0, 1))
sketch8.addConstraint(Sketcher.Constraint("Equal", 1, 2))
sketch8.addConstraint(Sketcher.Constraint("Diameter", 0, 3.0))
sketch8.addConstraint(Sketcher.Constraint("DistanceX", -1, 1, 1, 3, 53.782))
sketch8.addConstraint(Sketcher.Constraint("DistanceX", -1, 1, 0, 3, 74.5256))
sketch8.addConstraint(Sketcher.Constraint("DistanceY", -1, 1, 0, 3, 146.2747))
sketch8.addConstraint(Sketcher.Constraint("DistanceY", -1, 1, 1, 3, 159.2715))
sketch8.addConstraint(Sketcher.Constraint("DistanceX", -1, 1, 2, 3, 67.5978))
sketch8.addConstraint(Sketcher.Constraint("DistanceY", -1, 1, 2, 3, 187.2483))
pocket7 = body.newObject("PartDesign::Pocket", "Pocket006")
pocket7.Profile = sketch8
pocket7.Length = 6

# Sketch on YZ plane
sketch9 = body.newObject("Sketcher::SketchObject", "Sketch008")
sketch9.AttachmentSupport = (doc.getObject("YZ_Plane"), [""])
sketch9.MapMode = "FlatFace"
sketch9.AttachmentOffset = App.Placement(Vector(0, 0, 6), App.Rotation())
sketch9.addGeometry(Part.ArcOfCircle(Part.Circle(Vector(15.1016, 107.7388, 0), Vector(0, 0, 1), 1.500005), math.radians(4.998694), math.radians(49.593845)), False)
sketch9.addGeometry(Part.ArcOfCircle(Part.Circle(Vector(0, 90, 0), Vector(0, 0, 1), 24.79642), math.radians(49.591361), math.radians(130.408639)), False)
sketch9.addGeometry(Part.ArcOfCircle(Part.Circle(Vector(-15.1016, 107.7388, 0), Vector(0, 0, 1), 1.499996), math.radians(130.406155), math.radians(175.001306)), False)
sketch9.addGeometry(Part.LineSegment(Vector(-16.5959, 107.8695, 0), Vector(-17.2033, 100.9272, 0)), False)
sketch9.addGeometry(Part.ArcOfCircle(Part.Circle(Vector(-15.709, 100.7964, 0), Vector(0, 0, 1), 1.500014), math.radians(174.9975), math.radians(270)), False)
sketch9.addGeometry(Part.LineSegment(Vector(-15.709, 99.2964, 0), Vector(15.709, 99.2964, 0)), False)
sketch9.addGeometry(Part.ArcOfCircle(Part.Circle(Vector(15.709, 100.7964, 0), Vector(0, 0, 1), 1.5), math.radians(-90), math.radians(5.0025)), False)
sketch9.addGeometry(Part.LineSegment(Vector(17.2033, 100.9272, 0), Vector(16.5959, 107.8695, 0)), False)
sketch9.addGeometry(Part.ArcOfCircle(Part.Circle(Vector(-20.4081, 94, 0), Vector(0, 0, 1), 1.500005), math.radians(-11.088946), math.radians(90)), False)
sketch9.addGeometry(Part.LineSegment(Vector(-20.4081, 95.5, 0), Vector(-23.4578, 95.5, 0)), False)
sketch9.addGeometry(Part.ArcOfCircle(Part.Circle(Vector(-23.4578, 94, 0), Vector(0, 0, 1), 1.5), math.radians(90), math.radians(170.324805)), False)
sketch9.addGeometry(Part.ArcOfCircle(Part.Circle(Vector(0, 90, 0), Vector(0, 0, 1), 25.296439), math.radians(170.323161), math.radians(193.363455)), False)
sketch9.addGeometry(Part.ArcOfCircle(Part.Circle(Vector(-23.1521, 84.5, 0), Vector(0, 0, 1), 1.500016), math.radians(-166.636344), math.radians(-90)), False)
sketch9.addGeometry(Part.LineSegment(Vector(-23.1521, 83, 0), Vector(-20.0559, 83, 0)), False)
sketch9.addGeometry(Part.ArcOfCircle(Part.Circle(Vector(-20.0559, 84.5, 0), Vector(0, 0, 1), 1.5), math.radians(-90), math.radians(15.336196)), False)
sketch9.addGeometry(Part.ArcOfCircle(Part.Circle(Vector(0.001142, 89.99991, 0), Vector(0, 0, 1), 19.297539), math.radians(168.910924), math.radians(195.334201)), False)
sketch9.addGeometry(Part.ArcOfCircle(Part.Circle(Vector(20.0559, 84.5, 0), Vector(0, 0, 1), 1.499911), math.radians(164.663804), math.radians(270)), False)
sketch9.addGeometry(Part.LineSegment(Vector(20.0559, 83, 0), Vector(23.1521, 83, 0)), False)
sketch9.addGeometry(Part.ArcOfCircle(Part.Circle(Vector(23.1521, 84.5, 0), Vector(0, 0, 1), 1.5), math.radians(-90), math.radians(-13.363656)), False)
sketch9.addGeometry(Part.ArcOfCircle(Part.Circle(Vector(0, 90, 0), Vector(0, 0, 1), 25.29643), math.radians(-13.363455), math.radians(9.676839)), False)
sketch9.addGeometry(Part.ArcOfCircle(Part.Circle(Vector(23.4578, 94, 0), Vector(0, 0, 1), 1.500036), math.radians(9.675195), math.radians(90)), False)
sketch9.addGeometry(Part.LineSegment(Vector(23.4578, 95.5, 0), Vector(20.4081, 95.5, 0)), False)
sketch9.addGeometry(Part.ArcOfCircle(Part.Circle(Vector(20.4081, 94, 0), Vector(0, 0, 1), 1.5), math.radians(90), math.radians(191.088946)), False)
sketch9.addGeometry(Part.ArcOfCircle(Part.Circle(Vector(0.001132, 89.999826, 0), Vector(0, 0, 1), 19.295325), math.radians(-15.335745), math.radians(11.090619)), False)
sketch9.addConstraint(Sketcher.Constraint("Tangent", 0, 2, 1, 1))
sketch9.addConstraint(Sketcher.Constraint("Tangent", 1, 2, 2, 1))
sketch9.addConstraint(Sketcher.Constraint("Tangent", 2, 2, 3, 1))
sketch9.addConstraint(Sketcher.Constraint("Tangent", 3, 2, 4, 1))
sketch9.addConstraint(Sketcher.Constraint("Tangent", 4, 2, 5, 1))
sketch9.addConstraint(Sketcher.Constraint("Tangent", 5, 2, 6, 1))
sketch9.addConstraint(Sketcher.Constraint("Tangent", 6, 2, 7, 1))
sketch9.addConstraint(Sketcher.Constraint("Tangent", 7, 2, 0, 1))
sketch9.addConstraint(Sketcher.Constraint("Tangent", 8, 2, 9, 1))
sketch9.addConstraint(Sketcher.Constraint("Tangent", 9, 2, 10, 1))
sketch9.addConstraint(Sketcher.Constraint("Tangent", 10, 2, 11, 1))
sketch9.addConstraint(Sketcher.Constraint("Tangent", 11, 2, 12, 1))
sketch9.addConstraint(Sketcher.Constraint("Tangent", 12, 2, 13, 1))
sketch9.addConstraint(Sketcher.Constraint("Tangent", 13, 2, 14, 1))
sketch9.addConstraint(Sketcher.Constraint("Tangent", 14, 2, 15, 2))
sketch9.addConstraint(Sketcher.Constraint("Tangent", 15, 1, 8, 1))
sketch9.addConstraint(Sketcher.Constraint("Tangent", 16, 2, 17, 1))
sketch9.addConstraint(Sketcher.Constraint("Tangent", 17, 2, 18, 1))
sketch9.addConstraint(Sketcher.Constraint("Tangent", 18, 2, 19, 1))
sketch9.addConstraint(Sketcher.Constraint("Tangent", 19, 2, 20, 1))
sketch9.addConstraint(Sketcher.Constraint("Tangent", 20, 2, 21, 1))
sketch9.addConstraint(Sketcher.Constraint("Tangent", 21, 2, 22, 1))
sketch9.addConstraint(Sketcher.Constraint("Tangent", 22, 2, 23, 2))
sketch9.addConstraint(Sketcher.Constraint("Tangent", 23, 1, 16, 1))
sketch9.addConstraint(Sketcher.Constraint("Horizontal", 5))
sketch9.addConstraint(Sketcher.Constraint("Horizontal", 9))
sketch9.addConstraint(Sketcher.Constraint("Horizontal", 13))
sketch9.addConstraint(Sketcher.Constraint("Horizontal", 17))
sketch9.addConstraint(Sketcher.Constraint("Horizontal", 21))
sketch9.addConstraint(Sketcher.Constraint("Coincident", 11, 3, 1, 3))
sketch9.addConstraint(Sketcher.Constraint("Coincident", 19, 3, 1, 3))
sketch9.addConstraint(Sketcher.Constraint("Coincident", 23, 3, 15, 3))
sketch9.addConstraint(Sketcher.Constraint("Equal", 0, 2))
sketch9.addConstraint(Sketcher.Constraint("Equal", 2, 4))
sketch9.addConstraint(Sketcher.Constraint("Equal", 4, 6))
sketch9.addConstraint(Sketcher.Constraint("Equal", 6, 8))
sketch9.addConstraint(Sketcher.Constraint("Equal", 8, 10))
sketch9.addConstraint(Sketcher.Constraint("Equal", 10, 12))
sketch9.addConstraint(Sketcher.Constraint("Equal", 12, 14))
sketch9.addConstraint(Sketcher.Constraint("Equal", 14, 16))
sketch9.addConstraint(Sketcher.Constraint("Equal", 16, 18))
sketch9.addConstraint(Sketcher.Constraint("Equal", 11, 19))
sketch9.addConstraint(Sketcher.Constraint("Equal", 18, 20))
sketch9.addConstraint(Sketcher.Constraint("Equal", 20, 22))
sketch9.addConstraint(Sketcher.Constraint("Symmetric", 0, 3, 2, 3, -2))
sketch9.addConstraint(Sketcher.Constraint("Symmetric", 14, 3, 16, 3, -2))
sketch9.addConstraint(Sketcher.Constraint("Symmetric", 8, 3, 22, 3, -2))
sketch9.addConstraint(Sketcher.Constraint("Horizontal", 11, 3, 15, 3))
sketch9.addConstraint(Sketcher.Constraint("Horizontal", 3, 2, 6, 2))
sketch9.addConstraint(Sketcher.Constraint("Radius", 0, 1.5))
sketch9.addConstraint(Sketcher.Constraint("Radius", 1, 24.7964))
sketch9.addConstraint(Sketcher.Constraint("Radius", 11, 25.2964))
sketch9.addConstraint(Sketcher.Constraint("DistanceY", 12, 3, 10, 3, 9.5))
sketch9.addConstraint(Sketcher.Constraint("DistanceX", 5, 1, 5, 2, 31.418))
sketch9.addConstraint(Sketcher.Constraint("Angle", 3, Q("-95.0002 deg")))
sketch9.addConstraint(Sketcher.Constraint("DistanceX", 13, 1, 13, 2, 3.0962))
sketch9.addConstraint(Sketcher.Constraint("DistanceY", -1, 1, 1, 3, 90.0))
sketch9.addConstraint(Sketcher.Constraint("DistanceY", -1, 1, 8, 3, 94.0))
sketch9.addConstraint(Sketcher.Constraint("DistanceX", 2, 3, 0, 3, 30.2032))
pocket8 = body.newObject("PartDesign::Pocket", "Pocket007")
pocket8.Profile = sketch9
pocket8.Length = 6

# Sketch on YZ plane
sketch10 = body.newObject("Sketcher::SketchObject", "Sketch009")
sketch10.AttachmentSupport = (doc.getObject("YZ_Plane"), [""])
sketch10.MapMode = "FlatFace"
sketch10.addGeometry(Part.Circle(Vector(99, -166, 0), Vector(0, 0, 1), 1.5), False)
sketch10.addGeometry(Part.Circle(Vector(29, -166, 0), Vector(0, 0, 1), 1.5), False)
sketch10.addGeometry(Part.Circle(Vector(-29, -166, 0), Vector(0, 0, 1), 1.5), False)
sketch10.addGeometry(Part.Circle(Vector(-99, -166, 0), Vector(0, 0, 1), 1.5), False)
sketch10.addConstraint(Sketcher.Constraint("Equal", 0, 1))
sketch10.addConstraint(Sketcher.Constraint("Equal", 1, 2))
sketch10.addConstraint(Sketcher.Constraint("Equal", 2, 3))
sketch10.addConstraint(Sketcher.Constraint("Symmetric", 1, 3, 2, 3, -2))
sketch10.addConstraint(Sketcher.Constraint("Symmetric", 0, 3, 3, 3, -2))
sketch10.addConstraint(Sketcher.Constraint("Horizontal", 0, 3, 1, 3))
sketch10.addConstraint(Sketcher.Constraint("Diameter", 0, 3.0))
sketch10.addConstraint(Sketcher.Constraint("DistanceX", -1, 1, 1, 3, 29.0))
sketch10.addConstraint(Sketcher.Constraint("DistanceX", 1, 3, 0, 3, 70.0))
sketch10.addConstraint(Sketcher.Constraint("DistanceY", 0, 3, -1, 1, 166.0))
pocket9 = body.newObject("PartDesign::Pocket", "Pocket008")
pocket9.Profile = sketch10
pocket9.Length = 10
pocket9.Reversed = True

# Sketch on YZ plane
sketch11 = body.newObject("Sketcher::SketchObject", "Sketch010")
sketch11.AttachmentSupport = (doc.getObject("YZ_Plane"), [""])
sketch11.MapMode = "FlatFace"
sketch11.AttachmentOffset = App.Placement(Vector(0, 0, 6), App.Rotation())
sketch11.addGeometry(Part.LineSegment(Vector(-150.8, -173.3, 0), Vector(-150.8, -215.4, 0)), False)
sketch11.addGeometry(Part.ArcOfCircle(Part.Circle(Vector(-148.3, -215.4, 0), Vector(0, 0, 1), 2.5), math.radians(180), math.radians(270)), False)
sketch11.addGeometry(Part.LineSegment(Vector(-148.3, -217.9, 0), Vector(-126.1, -217.9, 0)), False)
sketch11.addGeometry(Part.ArcOfCircle(Part.Circle(Vector(-126.1, -215.4, 0), Vector(0, 0, 1), 2.5), math.radians(-90), math.radians(0)), False)
sketch11.addGeometry(Part.LineSegment(Vector(-123.6, -215.4, 0), Vector(-123.6, -173.3, 0)), False)
sketch11.addGeometry(Part.ArcOfCircle(Part.Circle(Vector(-124.8, -173.3, 0), Vector(0, 0, 1), 1.2), math.radians(0), math.radians(90)), False)
sketch11.addGeometry(Part.LineSegment(Vector(-124.8, -172.1, 0), Vector(-149.6, -172.1, 0)), False)
sketch11.addGeometry(Part.ArcOfCircle(Part.Circle(Vector(-149.6, -173.3, 0), Vector(0, 0, 1), 1.2), math.radians(90), math.radians(180)), False)
sketch11.addConstraint(Sketcher.Constraint("Tangent", 0, 2, 1, 1))
sketch11.addConstraint(Sketcher.Constraint("Tangent", 1, 2, 2, 1))
sketch11.addConstraint(Sketcher.Constraint("Tangent", 2, 2, 3, 1))
sketch11.addConstraint(Sketcher.Constraint("Tangent", 3, 2, 4, 1))
sketch11.addConstraint(Sketcher.Constraint("Tangent", 4, 2, 5, 1))
sketch11.addConstraint(Sketcher.Constraint("Tangent", 5, 2, 6, 1))
sketch11.addConstraint(Sketcher.Constraint("Tangent", 6, 2, 7, 1))
sketch11.addConstraint(Sketcher.Constraint("Tangent", 7, 2, 0, 1))
sketch11.addConstraint(Sketcher.Constraint("Vertical", 0))
sketch11.addConstraint(Sketcher.Constraint("Horizontal", 2))
sketch11.addConstraint(Sketcher.Constraint("Vertical", 4))
sketch11.addConstraint(Sketcher.Constraint("Horizontal", 6))
sketch11.addConstraint(Sketcher.Constraint("Equal", 1, 3))
sketch11.addConstraint(Sketcher.Constraint("Equal", 5, 7))
sketch11.addConstraint(Sketcher.Constraint("Radius", 1, 2.5))
sketch11.addConstraint(Sketcher.Constraint("Radius", 5, 1.2))
sketch11.addConstraint(Sketcher.Constraint("DistanceX", 2, 1, 2, 2, 22.2))
sketch11.addConstraint(Sketcher.Constraint("DistanceY", 0, 2, 0, 1, 42.1))
sketch11.addConstraint(Sketcher.Constraint("DistanceX", 1, 3, -1, 1, 148.3))
sketch11.addConstraint(Sketcher.Constraint("DistanceY", 1, 3, -1, 1, 215.4))
pocket10 = body.newObject("PartDesign::Pocket", "Pocket009")
pocket10.Profile = sketch11
pocket10.Length = 6

# Sketch on YZ plane
sketch12 = body.newObject("Sketcher::SketchObject", "Sketch011")
sketch12.AttachmentSupport = (doc.getObject("YZ_Plane"), [""])
sketch12.MapMode = "FlatFace"
sketch12.addGeometry(Part.LineSegment(Vector(147, -203, 0), Vector(147, -205, 0)), False)
sketch12.addGeometry(Part.LineSegment(Vector(147, -205, 0), Vector(119, -205, 0)), False)
sketch12.addGeometry(Part.LineSegment(Vector(119, -205, 0), Vector(119, -203, 0)), False)
sketch12.addGeometry(Part.ArcOfCircle(Part.Circle(Vector(119, -198, 0), Vector(0, 0, 1), 5), math.radians(90), math.radians(270)), False)
sketch12.addGeometry(Part.LineSegment(Vector(119, -193, 0), Vector(119, -191, 0)), False)
sketch12.addGeometry(Part.LineSegment(Vector(119, -191, 0), Vector(147, -191, 0)), False)
sketch12.addGeometry(Part.LineSegment(Vector(147, -191, 0), Vector(147, -193, 0)), False)
sketch12.addGeometry(Part.ArcOfCircle(Part.Circle(Vector(147, -198, 0), Vector(0, 0, 1), 5), math.radians(-90), math.radians(90)), False)
sketch12.addConstraint(Sketcher.Constraint("Coincident", 0, 2, 1, 1))
sketch12.addConstraint(Sketcher.Constraint("Coincident", 1, 2, 2, 1))
sketch12.addConstraint(Sketcher.Constraint("Coincident", 2, 2, 3, 2))
sketch12.addConstraint(Sketcher.Constraint("Coincident", 3, 1, 4, 1))
sketch12.addConstraint(Sketcher.Constraint("Coincident", 4, 2, 5, 1))
sketch12.addConstraint(Sketcher.Constraint("Coincident", 5, 2, 6, 1))
sketch12.addConstraint(Sketcher.Constraint("Coincident", 6, 2, 7, 2))
sketch12.addConstraint(Sketcher.Constraint("Coincident", 7, 1, 0, 1))
sketch12.addConstraint(Sketcher.Constraint("Vertical", 0))
sketch12.addConstraint(Sketcher.Constraint("Horizontal", 1))
sketch12.addConstraint(Sketcher.Constraint("Vertical", 2))
sketch12.addConstraint(Sketcher.Constraint("Vertical", 4))
sketch12.addConstraint(Sketcher.Constraint("Horizontal", 5))
sketch12.addConstraint(Sketcher.Constraint("Vertical", 6))
sketch12.addConstraint(Sketcher.Constraint("Equal", 3, 7))
sketch12.addConstraint(Sketcher.Constraint("Horizontal", 3, 3, 7, 3))
sketch12.addConstraint(Sketcher.Constraint("Vertical", 7, 3, 0, 2))
sketch12.addConstraint(Sketcher.Constraint("Vertical", 3, 3, 1, 2))
sketch12.addConstraint(Sketcher.Constraint("Vertical", 2, 2, 3, 1))
sketch12.addConstraint(Sketcher.Constraint("Vertical", 0, 2, 5, 2))
sketch12.addConstraint(Sketcher.Constraint("Equal", 2, 4))
sketch12.addConstraint(Sketcher.Constraint("DistanceX", 1, 2, 1, 1, 28.0))
sketch12.addConstraint(Sketcher.Constraint("DistanceY", 0, 2, 0, 1, 2.0))
sketch12.addConstraint(Sketcher.Constraint("Radius", 3, 5.0))
sketch12.addConstraint(Sketcher.Constraint("DistanceX", -1, 1, 3, 3, 119.0))
sketch12.addConstraint(Sketcher.Constraint("DistanceY", 3, 3, -1, 1, 198.0))
pocket11 = body.newObject("PartDesign::Pocket", "Pocket010")
pocket11.Profile = sketch12
pocket11.Length = 5
pocket11.Reversed = True

# Sketch on YZ plane
sketch13 = body.newObject("Sketcher::SketchObject", "Sketch012")
sketch13.AttachmentSupport = (doc.getObject("YZ_Plane"), [""])
sketch13.MapMode = "FlatFace"
sketch13.addGeometry(Part.LineSegment(Vector(141.5, -191, 0), Vector(141.5, -205, 0)), False)
sketch13.addGeometry(Part.LineSegment(Vector(141.5, -205, 0), Vector(124.5, -205, 0)), False)
sketch13.addGeometry(Part.LineSegment(Vector(124.5, -205, 0), Vector(124.5, -191, 0)), False)
sketch13.addGeometry(Part.LineSegment(Vector(124.5, -191, 0), Vector(141.5, -191, 0)), False)
sketch13.addGeometry(Part.Circle(Vector(147, -198, 0), Vector(0, 0, 1), 1.5), False)
sketch13.addGeometry(Part.Circle(Vector(119, -198, 0), Vector(0, 0, 1), 1.5), False)
sketch13.addConstraint(Sketcher.Constraint("Coincident", 0, 2, 1, 1))
sketch13.addConstraint(Sketcher.Constraint("Coincident", 1, 2, 2, 1))
sketch13.addConstraint(Sketcher.Constraint("Coincident", 2, 2, 3, 1))
sketch13.addConstraint(Sketcher.Constraint("Coincident", 3, 2, 0, 1))
sketch13.addConstraint(Sketcher.Constraint("Vertical", 0))
sketch13.addConstraint(Sketcher.Constraint("Horizontal", 1))
sketch13.addConstraint(Sketcher.Constraint("Vertical", 2))
sketch13.addConstraint(Sketcher.Constraint("Horizontal", 3))
sketch13.addConstraint(Sketcher.Constraint("Equal", 4, 5))
sketch13.addConstraint(Sketcher.Constraint("Horizontal", 4, 3, 5, 3))
sketch13.addConstraint(Sketcher.Constraint("Diameter", 4, 3.0))
sketch13.addConstraint(Sketcher.Constraint("DistanceX", 1, 2, 1, 1, 17.0))
sketch13.addConstraint(Sketcher.Constraint("DistanceY", 0, 2, 0, 1, 14.0))
sketch13.addConstraint(Sketcher.Constraint("DistanceX", 5, 3, 4, 3, 28.0))
sketch13.addConstraint(Sketcher.Constraint("DistanceX", -1, 1, 4, 3, 147.0))
sketch13.addConstraint(Sketcher.Constraint("DistanceY", 4, 3, -1, 1, 198.0))
sketch13.addConstraint(Sketcher.Constraint("DistanceY", 0, 2, -1, 1, 205.0))
sketch13.addConstraint(Sketcher.Constraint("DistanceX", -1, 1, 0, 2, 141.5))
pocket12 = body.newObject("PartDesign::Pocket", "Pocket011")
pocket12.Profile = sketch13
pocket12.Length = 6
pocket12.Reversed = True
doc.recompute()

fillet = body.newObject("PartDesign::Fillet", "Fillet")
fillet.Base = (pocket12, edges_at(pocket12, [
    (2.5, 119, -191),
    (5.5, 124.5, -191),
    (5.5, 141.5, -191),
    (2.5, 147, -191),
    (2.5, 147, -205),
    (2.5, 119, -205),
    (5.5, 124.5, -205),
    (5.5, 141.5, -205),
]))
fillet.Radius = 1.5

doc.recompute()
